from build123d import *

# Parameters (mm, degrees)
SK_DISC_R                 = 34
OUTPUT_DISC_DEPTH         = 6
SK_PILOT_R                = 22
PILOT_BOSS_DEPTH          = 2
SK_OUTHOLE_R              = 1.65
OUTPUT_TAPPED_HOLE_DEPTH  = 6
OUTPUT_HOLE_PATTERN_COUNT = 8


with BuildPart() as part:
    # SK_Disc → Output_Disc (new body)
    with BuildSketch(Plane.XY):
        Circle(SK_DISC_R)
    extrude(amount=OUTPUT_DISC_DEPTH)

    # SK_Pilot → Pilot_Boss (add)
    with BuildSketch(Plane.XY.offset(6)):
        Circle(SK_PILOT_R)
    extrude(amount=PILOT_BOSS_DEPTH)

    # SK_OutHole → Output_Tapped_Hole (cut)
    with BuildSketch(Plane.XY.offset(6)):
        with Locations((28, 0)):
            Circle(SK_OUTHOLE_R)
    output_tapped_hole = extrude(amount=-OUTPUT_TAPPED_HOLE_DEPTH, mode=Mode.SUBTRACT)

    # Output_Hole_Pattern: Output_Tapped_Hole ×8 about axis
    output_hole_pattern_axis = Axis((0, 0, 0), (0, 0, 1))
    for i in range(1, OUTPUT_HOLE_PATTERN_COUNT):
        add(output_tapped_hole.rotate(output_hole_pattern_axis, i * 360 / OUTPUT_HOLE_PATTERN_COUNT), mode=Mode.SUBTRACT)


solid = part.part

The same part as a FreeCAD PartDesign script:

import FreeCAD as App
import Part
import Sketcher
Q = App.Units.Quantity

doc = App.newDocument("Part")
body = doc.addObject("PartDesign::Body", "Body")

# Sketch on XY plane
sketch1 = body.newObject("Sketcher::SketchObject", "Sketch")
sketch1.AttachmentSupport = (doc.getObject("XY_Plane"), [""])
sketch1.MapMode = "FlatFace"
sketch1.addGeometry(Part.Circle(App.Vector(0, 0, 0), App.Vector(0, 0, 1), 34), False)
sketch1.addConstraint(Sketcher.Constraint("Coincident", 0, 3, -1, 1))
sketch1.addConstraint(Sketcher.Constraint("Diameter", 0, Q("68 mm")))
pad1 = body.newObject("PartDesign::Pad", "Pad")
pad1.Profile = sketch1
pad1.Length = 6

# Sketch on XY plane
sketch2 = body.newObject("Sketcher::SketchObject", "Sketch001")
sketch2.AttachmentSupport = (doc.getObject("XY_Plane"), [""])
sketch2.MapMode = "FlatFace"
sketch2.AttachmentOffset = App.Placement(App.Vector(0, 0, 6), App.Rotation())
sketch2.addGeometry(Part.Circle(App.Vector(0, 0, 0), App.Vector(0, 0, 1), 22), False)
sketch2.addConstraint(Sketcher.Constraint("Coincident", 0, 3, -1, 1))
sketch2.addConstraint(Sketcher.Constraint("Diameter", 0, Q("44 mm")))
pad2 = body.newObject("PartDesign::Pad", "Pad001")
pad2.Profile = sketch2
pad2.Length = 2

# Sketch on XY plane
sketch3 = body.newObject("Sketcher::SketchObject", "Sketch002")
sketch3.AttachmentSupport = (doc.getObject("XY_Plane"), [""])
sketch3.MapMode = "FlatFace"
sketch3.AttachmentOffset = App.Placement(App.Vector(0, 0, 6), App.Rotation())
sketch3.addGeometry(Part.Circle(App.Vector(28, 0, 0), App.Vector(0, 0, 1), 1.6), False)
sketch3.addConstraint(Sketcher.Constraint("PointOnObject", 0, 3, -1))
sketch3.addConstraint(Sketcher.Constraint("Diameter", 0, Q("3.3 mm")))
sketch3.addConstraint(Sketcher.Constraint("DistanceX", -1, 1, 0, 3, Q("28 mm")))
pocket1 = body.newObject("PartDesign::Pocket", "Pocket")
pocket1.Profile = sketch3
pocket1.Length = 6
doc.recompute()

polarpattern = body.newObject("PartDesign::PolarPattern", "PolarPattern")
polarpattern.Originals = [pocket1]
polarpattern.Axis = (doc.getObject("Z_Axis"), [""])
polarpattern.Angle = 360
polarpattern.Occurrences = 8
body.Tip = polarpattern

doc.recompute()
